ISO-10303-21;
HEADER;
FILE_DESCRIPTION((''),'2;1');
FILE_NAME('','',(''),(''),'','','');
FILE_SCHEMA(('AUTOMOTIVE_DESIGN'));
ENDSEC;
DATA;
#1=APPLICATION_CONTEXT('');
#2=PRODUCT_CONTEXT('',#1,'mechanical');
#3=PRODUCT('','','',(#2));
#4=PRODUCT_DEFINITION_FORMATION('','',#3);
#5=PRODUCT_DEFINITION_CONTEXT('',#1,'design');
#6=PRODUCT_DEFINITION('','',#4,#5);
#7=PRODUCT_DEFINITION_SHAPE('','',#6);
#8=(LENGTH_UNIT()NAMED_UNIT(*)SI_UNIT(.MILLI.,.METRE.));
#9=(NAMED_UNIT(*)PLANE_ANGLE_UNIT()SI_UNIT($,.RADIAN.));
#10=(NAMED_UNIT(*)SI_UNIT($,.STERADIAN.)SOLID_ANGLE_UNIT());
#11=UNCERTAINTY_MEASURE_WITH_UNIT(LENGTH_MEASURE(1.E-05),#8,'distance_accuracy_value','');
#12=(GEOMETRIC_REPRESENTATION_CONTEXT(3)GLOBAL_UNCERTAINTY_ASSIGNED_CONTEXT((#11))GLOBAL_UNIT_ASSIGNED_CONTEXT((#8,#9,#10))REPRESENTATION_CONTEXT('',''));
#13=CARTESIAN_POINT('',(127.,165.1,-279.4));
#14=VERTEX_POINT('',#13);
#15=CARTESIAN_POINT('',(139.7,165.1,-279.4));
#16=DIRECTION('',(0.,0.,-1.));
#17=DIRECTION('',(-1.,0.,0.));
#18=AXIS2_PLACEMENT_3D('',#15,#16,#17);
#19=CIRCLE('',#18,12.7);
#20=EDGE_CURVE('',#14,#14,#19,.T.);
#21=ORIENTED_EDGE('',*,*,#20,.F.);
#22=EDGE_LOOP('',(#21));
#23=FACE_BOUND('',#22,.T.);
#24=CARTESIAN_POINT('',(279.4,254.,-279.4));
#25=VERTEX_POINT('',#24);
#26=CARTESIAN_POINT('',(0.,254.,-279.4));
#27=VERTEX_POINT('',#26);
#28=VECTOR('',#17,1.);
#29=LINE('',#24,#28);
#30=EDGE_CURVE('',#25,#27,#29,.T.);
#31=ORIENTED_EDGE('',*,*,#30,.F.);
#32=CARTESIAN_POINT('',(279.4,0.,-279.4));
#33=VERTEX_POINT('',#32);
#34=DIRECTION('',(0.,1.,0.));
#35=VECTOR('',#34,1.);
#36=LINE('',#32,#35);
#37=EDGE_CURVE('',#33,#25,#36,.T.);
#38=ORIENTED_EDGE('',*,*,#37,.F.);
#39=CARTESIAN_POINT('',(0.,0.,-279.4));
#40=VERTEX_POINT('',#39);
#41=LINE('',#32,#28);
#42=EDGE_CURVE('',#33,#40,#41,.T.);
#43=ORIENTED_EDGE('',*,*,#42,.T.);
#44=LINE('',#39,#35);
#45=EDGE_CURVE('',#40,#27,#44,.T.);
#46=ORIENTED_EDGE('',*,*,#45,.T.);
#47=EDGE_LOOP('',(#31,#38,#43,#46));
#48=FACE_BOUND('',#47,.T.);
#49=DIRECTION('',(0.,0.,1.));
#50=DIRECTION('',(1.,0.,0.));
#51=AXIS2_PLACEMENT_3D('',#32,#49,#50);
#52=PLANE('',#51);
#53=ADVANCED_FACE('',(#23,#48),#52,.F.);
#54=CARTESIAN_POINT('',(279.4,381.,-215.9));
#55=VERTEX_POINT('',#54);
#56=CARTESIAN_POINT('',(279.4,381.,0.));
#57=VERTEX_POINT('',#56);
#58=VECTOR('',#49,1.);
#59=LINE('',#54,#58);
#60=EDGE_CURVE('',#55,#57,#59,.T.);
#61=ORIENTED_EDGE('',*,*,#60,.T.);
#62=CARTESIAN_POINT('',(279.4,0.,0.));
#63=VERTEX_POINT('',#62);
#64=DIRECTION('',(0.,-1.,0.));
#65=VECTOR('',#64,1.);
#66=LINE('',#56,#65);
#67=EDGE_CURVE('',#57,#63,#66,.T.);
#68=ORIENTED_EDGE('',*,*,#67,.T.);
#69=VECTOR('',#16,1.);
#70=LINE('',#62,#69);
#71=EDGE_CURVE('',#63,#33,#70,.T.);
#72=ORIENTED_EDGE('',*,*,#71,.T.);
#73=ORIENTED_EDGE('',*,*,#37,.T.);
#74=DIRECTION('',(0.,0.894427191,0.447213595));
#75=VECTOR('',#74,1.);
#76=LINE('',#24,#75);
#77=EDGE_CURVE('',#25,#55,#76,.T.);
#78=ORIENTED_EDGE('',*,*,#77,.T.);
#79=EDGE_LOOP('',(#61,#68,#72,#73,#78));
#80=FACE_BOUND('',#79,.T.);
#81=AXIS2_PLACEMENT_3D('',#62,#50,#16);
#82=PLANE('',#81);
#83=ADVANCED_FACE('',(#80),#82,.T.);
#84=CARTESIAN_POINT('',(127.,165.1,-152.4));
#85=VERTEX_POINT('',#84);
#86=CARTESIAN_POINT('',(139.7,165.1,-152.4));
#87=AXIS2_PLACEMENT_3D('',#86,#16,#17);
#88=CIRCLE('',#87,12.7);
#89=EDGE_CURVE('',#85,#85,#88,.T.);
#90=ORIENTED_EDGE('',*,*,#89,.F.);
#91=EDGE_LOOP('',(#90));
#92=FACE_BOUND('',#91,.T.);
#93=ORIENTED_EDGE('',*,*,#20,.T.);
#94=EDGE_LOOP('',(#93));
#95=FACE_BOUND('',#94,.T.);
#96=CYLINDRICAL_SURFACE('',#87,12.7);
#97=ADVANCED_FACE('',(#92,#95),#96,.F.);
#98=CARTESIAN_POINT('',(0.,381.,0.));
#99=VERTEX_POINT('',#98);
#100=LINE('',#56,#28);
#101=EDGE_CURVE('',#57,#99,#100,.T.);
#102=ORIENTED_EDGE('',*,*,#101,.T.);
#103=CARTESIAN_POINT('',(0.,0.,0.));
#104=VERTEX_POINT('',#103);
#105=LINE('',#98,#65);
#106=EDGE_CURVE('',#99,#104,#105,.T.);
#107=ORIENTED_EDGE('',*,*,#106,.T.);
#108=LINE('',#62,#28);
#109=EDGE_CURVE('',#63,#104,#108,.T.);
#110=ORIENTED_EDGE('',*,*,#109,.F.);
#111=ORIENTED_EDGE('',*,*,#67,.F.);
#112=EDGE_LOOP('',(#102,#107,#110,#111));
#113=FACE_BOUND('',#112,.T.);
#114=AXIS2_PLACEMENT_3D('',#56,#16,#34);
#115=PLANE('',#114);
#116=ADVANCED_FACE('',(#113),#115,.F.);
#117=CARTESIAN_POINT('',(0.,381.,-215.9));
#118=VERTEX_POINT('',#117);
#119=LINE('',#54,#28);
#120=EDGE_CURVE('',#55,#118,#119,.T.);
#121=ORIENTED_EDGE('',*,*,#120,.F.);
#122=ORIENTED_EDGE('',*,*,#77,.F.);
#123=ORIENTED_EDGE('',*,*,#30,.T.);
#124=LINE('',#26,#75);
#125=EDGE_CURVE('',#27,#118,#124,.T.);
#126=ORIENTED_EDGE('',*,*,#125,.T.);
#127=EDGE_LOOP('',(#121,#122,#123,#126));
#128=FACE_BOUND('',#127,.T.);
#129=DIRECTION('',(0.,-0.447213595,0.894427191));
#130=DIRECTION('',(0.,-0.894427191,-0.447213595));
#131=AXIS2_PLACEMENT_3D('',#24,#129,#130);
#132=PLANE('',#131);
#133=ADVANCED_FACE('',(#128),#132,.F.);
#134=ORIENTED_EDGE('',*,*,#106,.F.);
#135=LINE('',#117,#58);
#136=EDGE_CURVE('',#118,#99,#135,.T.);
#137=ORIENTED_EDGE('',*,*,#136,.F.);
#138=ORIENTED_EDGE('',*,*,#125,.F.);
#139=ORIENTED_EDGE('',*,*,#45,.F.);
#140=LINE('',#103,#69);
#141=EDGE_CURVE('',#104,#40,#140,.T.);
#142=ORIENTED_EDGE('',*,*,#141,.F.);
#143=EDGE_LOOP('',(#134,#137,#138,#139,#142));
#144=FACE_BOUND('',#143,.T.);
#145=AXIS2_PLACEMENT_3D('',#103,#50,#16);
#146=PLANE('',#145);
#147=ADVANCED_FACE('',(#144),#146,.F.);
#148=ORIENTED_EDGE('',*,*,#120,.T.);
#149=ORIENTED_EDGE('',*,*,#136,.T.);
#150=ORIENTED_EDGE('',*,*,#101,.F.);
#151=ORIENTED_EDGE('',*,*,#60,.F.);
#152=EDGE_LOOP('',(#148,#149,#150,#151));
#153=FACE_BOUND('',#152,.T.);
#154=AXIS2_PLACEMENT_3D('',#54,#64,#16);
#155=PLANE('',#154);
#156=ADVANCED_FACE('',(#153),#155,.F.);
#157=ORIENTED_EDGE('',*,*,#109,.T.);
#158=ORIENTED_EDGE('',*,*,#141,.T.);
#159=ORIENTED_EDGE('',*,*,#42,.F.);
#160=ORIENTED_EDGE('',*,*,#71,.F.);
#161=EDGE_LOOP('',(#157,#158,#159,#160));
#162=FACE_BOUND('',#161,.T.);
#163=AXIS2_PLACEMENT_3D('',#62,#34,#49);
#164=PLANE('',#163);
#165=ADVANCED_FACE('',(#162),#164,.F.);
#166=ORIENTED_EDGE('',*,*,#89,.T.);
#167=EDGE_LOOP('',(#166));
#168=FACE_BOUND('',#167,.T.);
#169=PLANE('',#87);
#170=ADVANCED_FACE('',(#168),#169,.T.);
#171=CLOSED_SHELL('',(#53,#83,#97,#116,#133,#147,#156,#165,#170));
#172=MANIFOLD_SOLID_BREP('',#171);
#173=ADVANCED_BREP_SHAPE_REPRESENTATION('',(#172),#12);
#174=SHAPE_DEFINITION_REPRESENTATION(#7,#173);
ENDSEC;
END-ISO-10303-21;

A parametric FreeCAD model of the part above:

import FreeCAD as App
import Part
import Sketcher

V = App.Vector
Q = App.Units.Quantity

doc = App.newDocument("Part")
params = doc.addObject("Spreadsheet::Sheet", "Params")
for row, (alias, value) in enumerate([
    ("sketch1_width", "10 in"),
    ("sketch1_width2", "15 in"),
    ("sketch1_height", "11 in"),
    ("sketch1_height2", "8.5 in"),
    ("pad1_length", "11 in"),
    ("sketch2_diameter", "1 in"),
    ("pocket1_length", "5 in"),
], start=1):
    params.set(f"A{row}", alias)
    params.set(f"B{row}", "=" + value)
    params.setAlias(f"B{row}", alias)

body = doc.addObject("PartDesign::Body", "Body")

# Sketch on YZ plane
sketch1 = doc.addObject("Sketcher::SketchObject", "Sketch")
body.addObject(sketch1)
sketch1.AttachmentSupport = (doc.YZ_Plane, [""])
sketch1.MapMode = "FlatFace"
sketch1.addGeometry([
    Part.LineSegment(V(0, 0, 0), V(0, -279.4, 0)),  # 0
    Part.LineSegment(V(0, -279.4, 0), V(254, -279.4, 0)),  # 1
    Part.LineSegment(V(254, -279.4, 0), V(381, -215.9, 0)),  # 2
    Part.LineSegment(V(381, -215.9, 0), V(381, 0, 0)),  # 3
    Part.LineSegment(V(381, 0, 0), V(0, 0, 0)),  # 4
], False)
sketch1.addConstraint([
    Sketcher.Constraint("Coincident", 0, 2, 1, 1),
    Sketcher.Constraint("Coincident", 1, 2, 2, 1),
    Sketcher.Constraint("Coincident", 2, 2, 3, 1),
    Sketcher.Constraint("Coincident", 3, 2, 4, 1),
    Sketcher.Constraint("Coincident", 4, 2, 0, 1),
    Sketcher.Constraint("Vertical", 0),
    Sketcher.Constraint("Horizontal", 1),
    Sketcher.Constraint("Vertical", 3),
    Sketcher.Constraint("Horizontal", 4),
    Sketcher.Constraint("Coincident", 4, 2, -1, 1),
    Sketcher.Constraint("DistanceX", 1, 1, 1, 2, Q("10 in")),
    Sketcher.Constraint("DistanceX", 4, 2, 4, 1, Q("15 in")),
    Sketcher.Constraint("DistanceY", 0, 2, 0, 1, Q("11 in")),
    Sketcher.Constraint("DistanceY", 3, 1, 3, 2, Q("8.5 in")),
])
sketch1.setExpression("Constraints[10]", "Params.sketch1_width")
sketch1.setExpression("Constraints[11]", "Params.sketch1_width2")
sketch1.setExpression("Constraints[12]", "Params.sketch1_height")
sketch1.setExpression("Constraints[13]", "Params.sketch1_height2")
pad1 = doc.addObject("PartDesign::Pad", "Pad")
body.addObject(pad1)
pad1.Profile = sketch1
pad1.setExpression("Length", "Params.pad1_length")

# Sketch on XY plane
sketch2 = doc.addObject("Sketcher::SketchObject", "Sketch001")
body.addObject(sketch2)
sketch2.AttachmentSupport = (doc.XY_Plane, [""])
sketch2.MapMode = "FlatFace"
sketch2.AttachmentOffset = App.Placement(V(0, 0, -11 * 25.4), App.Rotation())
sketch2.addGeometry(Part.Circle(V(139.7, 165.1, 0), V(0, 0, 1), 12.7), False)
sketch2.addConstraint([
    Sketcher.Constraint("Diameter", 0, Q("1 in")),
    Sketcher.Constraint("DistanceX", -1, 1, 0, 3, Q("5.5 in")),
    Sketcher.Constraint("DistanceY", -1, 1, 0, 3, Q("6.5 in")),
])
sketch2.setExpression("Constraints[0]", "Params.sketch2_diameter")
pocket1 = doc.addObject("PartDesign::Pocket", "Pocket")
body.addObject(pocket1)
pocket1.Profile = sketch2
pocket1.setExpression("Length", "Params.pocket1_length")
pocket1.Reversed = True

doc.recompute()
